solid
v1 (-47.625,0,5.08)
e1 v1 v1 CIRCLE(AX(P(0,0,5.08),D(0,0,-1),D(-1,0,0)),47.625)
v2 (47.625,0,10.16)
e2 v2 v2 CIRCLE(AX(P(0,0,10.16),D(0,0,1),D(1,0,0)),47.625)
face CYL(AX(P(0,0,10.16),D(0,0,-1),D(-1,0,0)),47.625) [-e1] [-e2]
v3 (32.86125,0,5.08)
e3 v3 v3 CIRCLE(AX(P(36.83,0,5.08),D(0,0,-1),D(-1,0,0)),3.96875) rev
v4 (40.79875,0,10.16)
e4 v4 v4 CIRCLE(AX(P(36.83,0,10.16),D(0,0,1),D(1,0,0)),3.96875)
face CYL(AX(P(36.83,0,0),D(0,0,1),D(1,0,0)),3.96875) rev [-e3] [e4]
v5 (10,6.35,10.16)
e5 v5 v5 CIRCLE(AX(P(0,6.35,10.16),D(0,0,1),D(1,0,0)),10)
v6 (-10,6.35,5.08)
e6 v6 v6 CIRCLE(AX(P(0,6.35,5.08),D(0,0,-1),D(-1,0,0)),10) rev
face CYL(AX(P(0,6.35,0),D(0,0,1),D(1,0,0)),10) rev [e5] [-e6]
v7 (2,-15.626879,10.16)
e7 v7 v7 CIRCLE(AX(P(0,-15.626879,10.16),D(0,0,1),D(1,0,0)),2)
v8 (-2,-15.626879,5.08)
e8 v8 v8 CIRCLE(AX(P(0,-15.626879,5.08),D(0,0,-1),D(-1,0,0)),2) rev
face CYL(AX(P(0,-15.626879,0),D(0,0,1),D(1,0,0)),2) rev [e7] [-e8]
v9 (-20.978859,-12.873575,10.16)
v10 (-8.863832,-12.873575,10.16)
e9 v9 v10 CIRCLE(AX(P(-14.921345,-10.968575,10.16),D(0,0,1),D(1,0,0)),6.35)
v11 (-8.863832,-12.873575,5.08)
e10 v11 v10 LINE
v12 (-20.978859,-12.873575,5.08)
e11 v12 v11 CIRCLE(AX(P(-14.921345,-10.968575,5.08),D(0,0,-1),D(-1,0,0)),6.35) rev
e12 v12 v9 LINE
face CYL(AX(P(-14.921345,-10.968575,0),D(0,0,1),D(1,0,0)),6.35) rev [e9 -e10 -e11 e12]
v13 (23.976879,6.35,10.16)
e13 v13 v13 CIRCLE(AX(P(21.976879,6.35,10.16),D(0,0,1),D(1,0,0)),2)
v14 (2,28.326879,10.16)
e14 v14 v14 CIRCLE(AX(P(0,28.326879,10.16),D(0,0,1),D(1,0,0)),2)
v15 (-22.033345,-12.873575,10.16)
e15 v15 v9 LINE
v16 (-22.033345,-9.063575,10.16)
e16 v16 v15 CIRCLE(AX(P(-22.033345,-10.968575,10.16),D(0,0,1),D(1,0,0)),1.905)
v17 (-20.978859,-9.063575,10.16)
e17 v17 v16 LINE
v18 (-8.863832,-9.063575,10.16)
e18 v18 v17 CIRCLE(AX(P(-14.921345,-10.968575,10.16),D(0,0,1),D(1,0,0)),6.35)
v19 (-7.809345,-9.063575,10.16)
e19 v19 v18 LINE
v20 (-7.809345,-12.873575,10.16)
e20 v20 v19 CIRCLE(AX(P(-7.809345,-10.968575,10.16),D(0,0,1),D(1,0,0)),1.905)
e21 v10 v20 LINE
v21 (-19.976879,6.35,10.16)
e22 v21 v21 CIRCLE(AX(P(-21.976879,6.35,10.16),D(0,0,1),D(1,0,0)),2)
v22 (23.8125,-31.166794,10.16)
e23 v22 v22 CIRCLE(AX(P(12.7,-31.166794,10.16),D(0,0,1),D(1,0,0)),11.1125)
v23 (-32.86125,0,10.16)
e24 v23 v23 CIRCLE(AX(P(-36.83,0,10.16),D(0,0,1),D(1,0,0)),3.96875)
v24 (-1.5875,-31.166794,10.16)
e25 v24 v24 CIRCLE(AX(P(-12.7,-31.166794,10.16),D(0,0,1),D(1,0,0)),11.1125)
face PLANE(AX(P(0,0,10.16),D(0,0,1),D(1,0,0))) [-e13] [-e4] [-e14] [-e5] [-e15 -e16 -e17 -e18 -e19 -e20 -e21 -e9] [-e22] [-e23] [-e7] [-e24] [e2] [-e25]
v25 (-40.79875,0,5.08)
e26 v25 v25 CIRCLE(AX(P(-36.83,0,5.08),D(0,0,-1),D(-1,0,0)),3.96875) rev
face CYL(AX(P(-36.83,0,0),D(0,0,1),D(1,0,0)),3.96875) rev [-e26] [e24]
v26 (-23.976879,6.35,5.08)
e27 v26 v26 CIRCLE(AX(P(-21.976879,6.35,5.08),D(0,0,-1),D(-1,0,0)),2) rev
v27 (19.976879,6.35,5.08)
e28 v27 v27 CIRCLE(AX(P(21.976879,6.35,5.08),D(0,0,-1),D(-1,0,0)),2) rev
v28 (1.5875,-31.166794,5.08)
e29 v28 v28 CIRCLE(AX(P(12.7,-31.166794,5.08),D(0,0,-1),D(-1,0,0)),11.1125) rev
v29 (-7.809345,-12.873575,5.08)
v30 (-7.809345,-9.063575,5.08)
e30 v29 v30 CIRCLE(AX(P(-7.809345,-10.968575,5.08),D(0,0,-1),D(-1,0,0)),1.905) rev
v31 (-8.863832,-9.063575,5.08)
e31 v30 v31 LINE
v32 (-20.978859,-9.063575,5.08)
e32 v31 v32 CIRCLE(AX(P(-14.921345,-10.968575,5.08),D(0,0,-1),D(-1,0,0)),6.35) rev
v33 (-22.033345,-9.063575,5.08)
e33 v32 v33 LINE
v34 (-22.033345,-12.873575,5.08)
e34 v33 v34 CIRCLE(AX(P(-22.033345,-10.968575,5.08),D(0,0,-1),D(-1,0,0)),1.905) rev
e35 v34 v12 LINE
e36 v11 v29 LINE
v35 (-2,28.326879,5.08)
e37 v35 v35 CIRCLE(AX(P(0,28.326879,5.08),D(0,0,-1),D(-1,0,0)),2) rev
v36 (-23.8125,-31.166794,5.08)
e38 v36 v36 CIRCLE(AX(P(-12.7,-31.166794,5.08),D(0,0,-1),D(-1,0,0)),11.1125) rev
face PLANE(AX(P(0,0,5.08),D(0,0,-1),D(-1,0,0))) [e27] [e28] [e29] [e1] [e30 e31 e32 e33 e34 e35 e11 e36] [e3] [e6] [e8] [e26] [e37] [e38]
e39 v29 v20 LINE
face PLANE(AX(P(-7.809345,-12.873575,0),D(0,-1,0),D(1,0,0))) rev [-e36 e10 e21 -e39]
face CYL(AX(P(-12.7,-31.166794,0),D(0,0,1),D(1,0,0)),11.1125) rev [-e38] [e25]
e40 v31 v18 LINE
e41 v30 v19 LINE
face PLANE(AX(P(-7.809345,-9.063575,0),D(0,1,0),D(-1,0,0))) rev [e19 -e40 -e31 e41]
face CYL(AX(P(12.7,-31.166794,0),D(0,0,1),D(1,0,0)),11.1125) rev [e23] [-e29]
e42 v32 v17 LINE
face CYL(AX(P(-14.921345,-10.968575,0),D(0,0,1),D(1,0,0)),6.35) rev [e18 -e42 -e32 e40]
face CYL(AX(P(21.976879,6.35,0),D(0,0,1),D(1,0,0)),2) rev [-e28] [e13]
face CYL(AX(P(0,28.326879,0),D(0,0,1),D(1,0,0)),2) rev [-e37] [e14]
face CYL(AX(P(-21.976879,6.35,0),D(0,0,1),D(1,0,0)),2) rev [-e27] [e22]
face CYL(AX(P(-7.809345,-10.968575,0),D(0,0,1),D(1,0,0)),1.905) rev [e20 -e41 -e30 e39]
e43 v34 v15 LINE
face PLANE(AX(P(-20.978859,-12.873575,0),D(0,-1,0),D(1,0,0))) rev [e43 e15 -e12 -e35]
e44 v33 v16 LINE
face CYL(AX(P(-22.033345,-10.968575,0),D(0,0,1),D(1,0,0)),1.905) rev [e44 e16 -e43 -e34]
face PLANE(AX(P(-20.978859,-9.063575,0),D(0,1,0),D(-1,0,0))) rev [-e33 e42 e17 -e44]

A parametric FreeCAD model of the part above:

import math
import FreeCAD as App
import Part
import Sketcher
from FreeCAD import Vector
Q = App.Units.Quantity

doc = App.newDocument("Part")
body = doc.addObject("PartDesign::Body", "Body")

# Sketch on XY plane
sketch1 = body.newObject("Sketcher::SketchObject", "Sketch")
sketch1.AttachmentSupport = (doc.getObject("XY_Plane"), [""])
sketch1.MapMode = "FlatFace"
sketch1.addGeometry(Part.Circle(Vector(0, 0, 0), Vector(0, 0, 1), 50), False)
sketch1.addConstraint(Sketcher.Constraint("Coincident", 0, 3, -1, 1))
sketch1.addConstraint(Sketcher.Constraint("Diameter", 0, Q("3.898 in")))
pad1 = body.newObject("PartDesign::Pad", "Pad")
pad1.Profile = sketch1
pad1.Length = Q("0.2 in")

# Sketch on XY plane
sketch2 = body.newObject("Sketcher::SketchObject", "Sketch001")
sketch2.AttachmentSupport = (doc.getObject("XY_Plane"), [""])
sketch2.MapMode = "FlatFace"
sketch2.AttachmentOffset = App.Placement(Vector(0, 0, 0.2 * 25.4), App.Rotation())
sketch2.addGeometry(Part.Circle(Vector(0, 0, 0), Vector(0, 0, 1), 48), False)
sketch2.addConstraint(Sketcher.Constraint("Coincident", 0, 3, -1, 1))
sketch2.addConstraint(Sketcher.Constraint("Diameter", 0, Q("3.75 in")))
pad2 = body.newObject("PartDesign::Pad", "Pad001")
pad2.Profile = sketch2
pad2.Length = Q("0.2 in")

# Sketch on XY plane
sketch3 = body.newObject("Sketcher::SketchObject", "Sketch002")
sketch3.AttachmentSupport = (doc.getObject("XY_Plane"), [""])
sketch3.MapMode = "FlatFace"
sketch3.AttachmentOffset = App.Placement(Vector(0, 0, 0.4 * 25.4), App.Rotation())
sketch3.addGeometry(Part.Circle(Vector(-12.7, -31.2, 0), Vector(0, 0, 1), 11.1), False)
sketch3.addGeometry(Part.Circle(Vector(12.7, -31.2, 0), Vector(0, 0, 1), 11.1), False)
sketch3.addGeometry(Part.Circle(Vector(-36.8, 0, 0), Vector(0, 0, 1), 4), False)
sketch3.addGeometry(Part.Circle(Vector(36.8, 0, 0), Vector(0, 0, 1), 4), False)
sketch3.addGeometry(Part.Circle(Vector(0, 6.3, 0), Vector(0, 0, 1), 10), False)
sketch3.addGeometry(Part.Circle(Vector(0, 28.3, 0), Vector(0, 0, 1), 2), False)
sketch3.addGeometry(Part.Circle(Vector(22, 6.3, 0), Vector(0, 0, 1), 2), False)
sketch3.addGeometry(Part.Circle(Vector(0, -15.6, 0), Vector(0, 0, 1), 2), False)
sketch3.addGeometry(Part.Circle(Vector(-22, 6.3, 0), Vector(0, 0, 1), 2), False)
sketch3.addGeometry(Part.LineSegment(Vector(-8.9, -12.9, 0), Vector(-7.8, -12.9, 0)), False)
sketch3.addGeometry(Part.ArcOfCircle(Part.Circle(Vector(-7.8, -11, 0), Vector(0, 0, 1), 1.9), math.radians(-90), math.radians(90)), False)
sketch3.addGeometry(Part.LineSegment(Vector(-7.8, -9.1, 0), Vector(-8.9, -9.1, 0)), False)
sketch3.addGeometry(Part.ArcOfCircle(Part.Circle(Vector(-14.9, -11, 0), Vector(0, 0, 1), 6.3), math.radians(17), math.radians(163)), False)
sketch3.addGeometry(Part.LineSegment(Vector(-21, -9.1, 0), Vector(-22, -9.1, 0)), False)
sketch3.addGeometry(Part.ArcOfCircle(Part.Circle(Vector(-22, -11, 0), Vector(0, 0, 1), 1.9), math.radians(90), math.radians(270)), False)
sketch3.addGeometry(Part.LineSegment(Vector(-22, -12.9, 0), Vector(-21, -12.9, 0)), False)
sketch3.addGeometry(Part.ArcOfCircle(Part.Circle(Vector(-14.9, -11, 0), Vector(0, 0, 1), 6.3), math.radians(-163), math.radians(-17)), False)
sketch3.addConstraint(Sketcher.Constraint("Tangent", 9, 2, 10, 1))
sketch3.addConstraint(Sketcher.Constraint("Tangent", 10, 2, 11, 1))
sketch3.addConstraint(Sketcher.Constraint("Coincident", 11, 2, 12, 1))
sketch3.addConstraint(Sketcher.Constraint("Coincident", 12, 2, 13, 1))
sketch3.addConstraint(Sketcher.Constraint("Tangent", 13, 2, 14, 1))
sketch3.addConstraint(Sketcher.Constraint("Tangent", 14, 2, 15, 1))
sketch3.addConstraint(Sketcher.Constraint("Coincident", 15, 2, 16, 1))
sketch3.addConstraint(Sketcher.Constraint("Coincident", 16, 2, 9, 1))
sketch3.addConstraint(Sketcher.Constraint("Horizontal", 9))
sketch3.addConstraint(Sketcher.Constraint("Horizontal", 11))
sketch3.addConstraint(Sketcher.Constraint("Horizontal", 13))
sketch3.addConstraint(Sketcher.Constraint("Horizontal", 15))
sketch3.addConstraint(Sketcher.Constraint("Coincident", 16, 3, 12, 3))
sketch3.addConstraint(Sketcher.Constraint("Equal", 0, 1))
sketch3.addConstraint(Sketcher.Constraint("Equal", 2, 3))
sketch3.addConstraint(Sketcher.Constraint("Equal", 5, 6))
sketch3.addConstraint(Sketcher.Constraint("Equal", 6, 7))
sketch3.addConstraint(Sketcher.Constraint("Equal", 7, 8))
sketch3.addConstraint(Sketcher.Constraint("Equal", 10, 14))
sketch3.addConstraint(Sketcher.Constraint("Equal", 12, 16))
sketch3.addConstraint(Sketcher.Constraint("Symmetric", 2, 3, 3, 3, -1, 1))
sketch3.addConstraint(Sketcher.Constraint("Symmetric", 0, 3, 1, 3, -2))
sketch3.addConstraint(Sketcher.Constraint("Symmetric", 6, 3, 8, 3, -2))
sketch3.addConstraint(Sketcher.Constraint("PointOnObject", 2, 3, -1))
sketch3.addConstraint(Sketcher.Constraint("PointOnObject", 4, 3, -2))
sketch3.addConstraint(Sketcher.Constraint("PointOnObject", 5, 3, -2))
sketch3.addConstraint(Sketcher.Constraint("PointOnObject", 7, 3, -2))
sketch3.addConstraint(Sketcher.Constraint("Horizontal", 4, 3, 6, 3))
sketch3.addConstraint(Sketcher.Constraint("Horizontal", 10, 3, 12, 3))
sketch3.addConstraint(Sketcher.Constraint("Horizontal", 12, 3, 14, 3))
sketch3.addConstraint(Sketcher.Constraint("Equal", 11, 13))
sketch3.addConstraint(Sketcher.Constraint("Radius", 12, Q("0.25 in")))
sketch3.addConstraint(Sketcher.Constraint("Diameter", 0, Q("0.875 in")))
sketch3.addConstraint(Sketcher.Constraint("Diameter", 2, Q("0.3125 in")))
sketch3.addConstraint(Sketcher.Constraint("Radius", 10, Q("0.075 in")))
sketch3.addConstraint(Sketcher.Constraint("DistanceX", 0, 3, 1, 3, Q("1 in")))
sketch3.addConstraint(Sketcher.Constraint("DistanceX", 2, 3, 3, 3, Q("2.9 in")))
sketch3.addConstraint(Sketcher.Constraint("Diameter", 4, 20.0))
sketch3.addConstraint(Sketcher.Constraint("Diameter", 5, 4.0))
sketch3.addConstraint(Sketcher.Constraint("DistanceY", -1, 1, 4, 3, Q("0.25 in")))
sketch3.addConstraint(Sketcher.Constraint("DistanceX", 12, 3, 10, 3, Q("0.28 in")))
sketch3.addConstraint(Sketcher.Constraint("DistanceY", -1, 1, 5, 3, 28.326879))
sketch3.addConstraint(Sketcher.Constraint("DistanceX", -1, 1, 6, 3, 21.976879))
sketch3.addConstraint(Sketcher.Constraint("DistanceY", 7, 3, -1, 1, 15.626879))
sketch3.addConstraint(Sketcher.Constraint("DistanceX", 11, 2, -1, 1, 8.863832))
sketch3.addConstraint(Sketcher.Constraint("DistanceY", 0, 3, 10, 3, 20.198218))
sketch3.addConstraint(Sketcher.Constraint("DistanceY", 0, 3, -1, 1, 31.166794))
pocket1 = body.newObject("PartDesign::Pocket", "Pocket")
pocket1.Profile = sketch3
pocket1.Type = "ThroughAll"

# Sketch on XY plane
sketch4 = body.newObject("Sketcher::SketchObject", "Sketch003")
sketch4.AttachmentSupport = (doc.getObject("XY_Plane"), [""])
sketch4.MapMode = "FlatFace"
sketch4.addGeometry(Part.Circle(Vector(0, 0, 0), Vector(0, 0, 1), 52), False)
sketch4.addConstraint(Sketcher.Constraint("Coincident", 0, 3, -1, 1))
sketch4.addConstraint(Sketcher.Constraint("Diameter", 0, 104.332549))
pocket2 = body.newObject("PartDesign::Pocket", "Pocket001")
pocket2.Profile = sketch4
pocket2.Length = Q("0.2 in")
pocket2.Reversed = True

doc.recompute()
